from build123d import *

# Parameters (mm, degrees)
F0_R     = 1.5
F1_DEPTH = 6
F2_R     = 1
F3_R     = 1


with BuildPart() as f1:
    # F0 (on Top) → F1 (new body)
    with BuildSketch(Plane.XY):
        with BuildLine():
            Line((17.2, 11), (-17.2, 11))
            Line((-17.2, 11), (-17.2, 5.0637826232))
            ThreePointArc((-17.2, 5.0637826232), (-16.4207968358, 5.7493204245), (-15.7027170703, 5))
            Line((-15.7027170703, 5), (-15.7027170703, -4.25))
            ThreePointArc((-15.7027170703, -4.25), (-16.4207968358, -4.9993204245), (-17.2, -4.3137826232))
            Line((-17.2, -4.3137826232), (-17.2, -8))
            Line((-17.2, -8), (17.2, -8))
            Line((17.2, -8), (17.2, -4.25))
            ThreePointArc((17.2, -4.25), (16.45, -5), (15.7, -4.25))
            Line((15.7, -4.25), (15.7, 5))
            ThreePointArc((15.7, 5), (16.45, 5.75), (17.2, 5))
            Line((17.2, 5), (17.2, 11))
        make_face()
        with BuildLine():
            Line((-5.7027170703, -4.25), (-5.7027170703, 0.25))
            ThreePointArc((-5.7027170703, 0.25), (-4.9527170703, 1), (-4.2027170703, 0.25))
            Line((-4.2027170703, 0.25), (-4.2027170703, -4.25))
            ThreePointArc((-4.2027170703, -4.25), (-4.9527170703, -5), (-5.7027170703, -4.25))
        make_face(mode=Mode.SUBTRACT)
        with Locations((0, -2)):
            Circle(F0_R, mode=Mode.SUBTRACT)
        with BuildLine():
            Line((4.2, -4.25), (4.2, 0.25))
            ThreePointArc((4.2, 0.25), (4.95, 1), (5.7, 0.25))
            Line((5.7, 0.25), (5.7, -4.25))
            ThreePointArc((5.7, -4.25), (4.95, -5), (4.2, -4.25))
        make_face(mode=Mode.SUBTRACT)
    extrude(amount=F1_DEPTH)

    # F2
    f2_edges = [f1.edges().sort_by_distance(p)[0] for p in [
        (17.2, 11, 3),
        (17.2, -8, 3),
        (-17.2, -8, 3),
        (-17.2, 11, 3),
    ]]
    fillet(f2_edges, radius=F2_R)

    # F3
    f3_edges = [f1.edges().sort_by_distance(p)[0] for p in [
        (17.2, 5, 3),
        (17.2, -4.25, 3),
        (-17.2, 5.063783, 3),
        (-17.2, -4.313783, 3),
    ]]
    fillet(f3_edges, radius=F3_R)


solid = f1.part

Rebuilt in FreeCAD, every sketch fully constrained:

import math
import FreeCAD as App
import Part
import Sketcher
Q = App.Units.Quantity


def edges_at(feature, points):
    """Names of the edges that pass closest to the given points."""
    edges = feature.Shape.Edges
    near = lambda p: min(range(len(edges)), key=lambda i: edges[i].distToShape(Part.Vertex(*p))[0])
    return sorted({f"Edge{near(p) + 1}" for p in points})

doc = App.newDocument("Part")
body = doc.addObject("PartDesign::Body", "Body")

sketch1 = doc.addObject("Sketcher::SketchObject", "Sketch")
body.addObject(sketch1)
sketch1.AttachmentSupport = (doc.XY_Plane, [""])
sketch1.MapMode = "FlatFace"
sketch1.addGeometry([
    Part.LineSegment(App.Vector(17.2, 11, 0), App.Vector(-17.2, 11, 0)),
    Part.LineSegment(App.Vector(-17.2, 11, 0), App.Vector(-17.2, 5.063783, 0)),
    Part.ArcOfCircle(Part.Circle(App.Vector(-16.452717, 5, 0), App.Vector(0, 0, 1), 0.75), math.radians(0), math.radians(175.121474)),
    Part.LineSegment(App.Vector(-15.702717, 5, 0), App.Vector(-15.702717, -4.25, 0)),
    Part.ArcOfCircle(Part.Circle(App.Vector(-16.452717, -4.25, 0), App.Vector(0, 0, 1), 0.75), math.radians(-175.121474), math.radians(0)),
    Part.LineSegment(App.Vector(-17.2, -4.313783, 0), App.Vector(-17.2, -8, 0)),
    Part.LineSegment(App.Vector(-17.2, -8, 0), App.Vector(17.2, -8, 0)),
    Part.LineSegment(App.Vector(17.2, -8, 0), App.Vector(17.2, -4.25, 0)),
    Part.ArcOfCircle(Part.Circle(App.Vector(16.45, -4.25, 0), App.Vector(0, 0, 1), 0.75), math.radians(180), math.radians(360)),
    Part.LineSegment(App.Vector(15.7, -4.25, 0), App.Vector(15.7, 5, 0)),
    Part.ArcOfCircle(Part.Circle(App.Vector(16.45, 5, 0), App.Vector(0, 0, 1), 0.75), math.radians(0), math.radians(180)),
    Part.LineSegment(App.Vector(17.2, 5, 0), App.Vector(17.2, 11, 0)),
    Part.ArcOfCircle(Part.Circle(App.Vector(-4.952717, -4.25, 0), App.Vector(0, 0, 1), 0.75), math.radians(180), math.radians(360)),
    Part.LineSegment(App.Vector(-5.702717, -4.25, 0), App.Vector(-5.702717, 0.25, 0)),
    Part.ArcOfCircle(Part.Circle(App.Vector(-4.952717, 0.25, 0), App.Vector(0, 0, 1), 0.75), math.radians(0), math.radians(180)),
    Part.LineSegment(App.Vector(-4.202717, 0.25, 0), App.Vector(-4.202717, -4.25, 0)),
    Part.Circle(App.Vector(0, -2, 0), App.Vector(0, 0, 1), 1.5),
    Part.ArcOfCircle(Part.Circle(App.Vector(4.95, -4.25, 0), App.Vector(0, 0, 1), 0.75), math.radians(180), math.radians(360)),
    Part.LineSegment(App.Vector(4.2, -4.25, 0), App.Vector(4.2, 0.25, 0)),
    Part.ArcOfCircle(Part.Circle(App.Vector(4.95, 0.25, 0), App.Vector(0, 0, 1), 0.75), math.radians(0), math.radians(180)),
    Part.LineSegment(App.Vector(5.7, 0.25, 0), App.Vector(5.7, -4.25, 0)),
], False)
sketch1.addConstraint([
    Sketcher.Constraint("Coincident", 0, 2, 1, 1),
    Sketcher.Constraint("Coincident", 1, 2, 2, 2),
    Sketcher.Constraint("Tangent", 2, 1, 3, 1),
    Sketcher.Constraint("Tangent", 3, 2, 4, 2),
    Sketcher.Constraint("Coincident", 4, 1, 5, 1),
    Sketcher.Constraint("Coincident", 5, 2, 6, 1),
    Sketcher.Constraint("Coincident", 6, 2, 7, 1),
    Sketcher.Constraint("Tangent", 7, 2, 8, 2),
    Sketcher.Constraint("Tangent", 8, 1, 9, 1),
    Sketcher.Constraint("Tangent", 9, 2, 10, 2),
    Sketcher.Constraint("Tangent", 10, 1, 11, 1),
    Sketcher.Constraint("Coincident", 11, 2, 0, 1),
    Sketcher.Constraint("Tangent", 12, 1, 13, 1),
    Sketcher.Constraint("Tangent", 13, 2, 14, 2),
    Sketcher.Constraint("Tangent", 14, 1, 15, 1),
    Sketcher.Constraint("Tangent", 15, 2, 12, 2),
    Sketcher.Constraint("Tangent", 17, 1, 18, 1),
    Sketcher.Constraint("Tangent", 18, 2, 19, 2),
    Sketcher.Constraint("Tangent", 19, 1, 20, 1),
    Sketcher.Constraint("Tangent", 20, 2, 17, 2),
    Sketcher.Constraint("Horizontal", 0),
    Sketcher.Constraint("Vertical", 1),
    Sketcher.Constraint("Vertical", 3),
    Sketcher.Constraint("Vertical", 5),
    Sketcher.Constraint("Horizontal", 6),
    Sketcher.Constraint("Vertical", 7),
    Sketcher.Constraint("Vertical", 9),
    Sketcher.Constraint("Vertical", 11),
    Sketcher.Constraint("Vertical", 13),
    Sketcher.Constraint("Vertical", 15),
    Sketcher.Constraint("Vertical", 18),
    Sketcher.Constraint("Vertical", 20),
    Sketcher.Constraint("Equal", 2, 4),
    Sketcher.Constraint("Equal", 4, 8),
    Sketcher.Constraint("Equal", 8, 10),
    Sketcher.Constraint("Equal", 10, 12),
    Sketcher.Constraint("Equal", 14, 17),
    Sketcher.Constraint("PointOnObject", 16, 3, -2),
    Sketcher.Constraint("Horizontal", 4, 3, 8, 3),
    Sketcher.Constraint("Horizontal", 2, 3, 10, 3),
    Sketcher.Constraint("Horizontal", 8, 3, 12, 3),
    Sketcher.Constraint("Horizontal", 12, 3, 17, 3),
    Sketcher.Constraint("Horizontal", 14, 3, 19, 3),
    Sketcher.Constraint("Vertical", 1, 2, 4, 1),
    Sketcher.Constraint("Diameter", 16, Q("3 mm")),
    Sketcher.Constraint("DistanceY", 11, 1, 11, 2, Q("6 mm")),
    Sketcher.Constraint("Radius", 2, Q("0.75 mm")),
    Sketcher.Constraint("DistanceX", 0, 2, 0, 1, Q("34.4 mm")),
    Sketcher.Constraint("DistanceY", 13, 1, 13, 2, Q("4.5 mm")),
    Sketcher.Constraint("DistanceY", -1, 1, 2, 3, Q("5 mm")),
    Sketcher.Constraint("DistanceY", 16, 3, -1, 1, Q("2 mm")),
    Sketcher.Constraint("DistanceY", 5, 2, -1, 1, Q("8 mm")),
    Sketcher.Constraint("DistanceX", 3, 2, 12, 1, Q("10 mm")),
    Sketcher.Constraint("DistanceY", 3, 2, 3, 1, Q("9.25 mm")),
    Sketcher.Constraint("DistanceX", 0, 2, -1, 1, Q("17.2 mm")),
    Sketcher.Constraint("DistanceX", -1, 1, 17, 1, Q("4.2 mm")),
    Sketcher.Constraint("DistanceY", 1, 2, 1, 1, Q("5.936217 mm")),
])
pad1 = doc.addObject("PartDesign::Pad", "Pad")
body.addObject(pad1)
pad1.Profile = sketch1
pad1.Length = 6
doc.recompute()

fillet = doc.addObject("PartDesign::Fillet", "Fillet")
body.addObject(fillet)
fillet.Base = (pad1, edges_at(pad1, [
    (17.2, 11, 3),
    (17.2, -8, 3),
    (-17.2, -8, 3),
    (-17.2, 11, 3),
]))
fillet.Radius = 1
doc.recompute()

fillet2 = doc.addObject("PartDesign::Fillet", "Fillet001")
body.addObject(fillet2)
fillet2.Base = (fillet, edges_at(fillet, [
    (17.2, 5, 3),
    (17.2, -4.25, 3),
    (-17.2, 5.064, 3),
    (-17.2, -4.314, 3),
]))
fillet2.Radius = 1

doc.recompute()
